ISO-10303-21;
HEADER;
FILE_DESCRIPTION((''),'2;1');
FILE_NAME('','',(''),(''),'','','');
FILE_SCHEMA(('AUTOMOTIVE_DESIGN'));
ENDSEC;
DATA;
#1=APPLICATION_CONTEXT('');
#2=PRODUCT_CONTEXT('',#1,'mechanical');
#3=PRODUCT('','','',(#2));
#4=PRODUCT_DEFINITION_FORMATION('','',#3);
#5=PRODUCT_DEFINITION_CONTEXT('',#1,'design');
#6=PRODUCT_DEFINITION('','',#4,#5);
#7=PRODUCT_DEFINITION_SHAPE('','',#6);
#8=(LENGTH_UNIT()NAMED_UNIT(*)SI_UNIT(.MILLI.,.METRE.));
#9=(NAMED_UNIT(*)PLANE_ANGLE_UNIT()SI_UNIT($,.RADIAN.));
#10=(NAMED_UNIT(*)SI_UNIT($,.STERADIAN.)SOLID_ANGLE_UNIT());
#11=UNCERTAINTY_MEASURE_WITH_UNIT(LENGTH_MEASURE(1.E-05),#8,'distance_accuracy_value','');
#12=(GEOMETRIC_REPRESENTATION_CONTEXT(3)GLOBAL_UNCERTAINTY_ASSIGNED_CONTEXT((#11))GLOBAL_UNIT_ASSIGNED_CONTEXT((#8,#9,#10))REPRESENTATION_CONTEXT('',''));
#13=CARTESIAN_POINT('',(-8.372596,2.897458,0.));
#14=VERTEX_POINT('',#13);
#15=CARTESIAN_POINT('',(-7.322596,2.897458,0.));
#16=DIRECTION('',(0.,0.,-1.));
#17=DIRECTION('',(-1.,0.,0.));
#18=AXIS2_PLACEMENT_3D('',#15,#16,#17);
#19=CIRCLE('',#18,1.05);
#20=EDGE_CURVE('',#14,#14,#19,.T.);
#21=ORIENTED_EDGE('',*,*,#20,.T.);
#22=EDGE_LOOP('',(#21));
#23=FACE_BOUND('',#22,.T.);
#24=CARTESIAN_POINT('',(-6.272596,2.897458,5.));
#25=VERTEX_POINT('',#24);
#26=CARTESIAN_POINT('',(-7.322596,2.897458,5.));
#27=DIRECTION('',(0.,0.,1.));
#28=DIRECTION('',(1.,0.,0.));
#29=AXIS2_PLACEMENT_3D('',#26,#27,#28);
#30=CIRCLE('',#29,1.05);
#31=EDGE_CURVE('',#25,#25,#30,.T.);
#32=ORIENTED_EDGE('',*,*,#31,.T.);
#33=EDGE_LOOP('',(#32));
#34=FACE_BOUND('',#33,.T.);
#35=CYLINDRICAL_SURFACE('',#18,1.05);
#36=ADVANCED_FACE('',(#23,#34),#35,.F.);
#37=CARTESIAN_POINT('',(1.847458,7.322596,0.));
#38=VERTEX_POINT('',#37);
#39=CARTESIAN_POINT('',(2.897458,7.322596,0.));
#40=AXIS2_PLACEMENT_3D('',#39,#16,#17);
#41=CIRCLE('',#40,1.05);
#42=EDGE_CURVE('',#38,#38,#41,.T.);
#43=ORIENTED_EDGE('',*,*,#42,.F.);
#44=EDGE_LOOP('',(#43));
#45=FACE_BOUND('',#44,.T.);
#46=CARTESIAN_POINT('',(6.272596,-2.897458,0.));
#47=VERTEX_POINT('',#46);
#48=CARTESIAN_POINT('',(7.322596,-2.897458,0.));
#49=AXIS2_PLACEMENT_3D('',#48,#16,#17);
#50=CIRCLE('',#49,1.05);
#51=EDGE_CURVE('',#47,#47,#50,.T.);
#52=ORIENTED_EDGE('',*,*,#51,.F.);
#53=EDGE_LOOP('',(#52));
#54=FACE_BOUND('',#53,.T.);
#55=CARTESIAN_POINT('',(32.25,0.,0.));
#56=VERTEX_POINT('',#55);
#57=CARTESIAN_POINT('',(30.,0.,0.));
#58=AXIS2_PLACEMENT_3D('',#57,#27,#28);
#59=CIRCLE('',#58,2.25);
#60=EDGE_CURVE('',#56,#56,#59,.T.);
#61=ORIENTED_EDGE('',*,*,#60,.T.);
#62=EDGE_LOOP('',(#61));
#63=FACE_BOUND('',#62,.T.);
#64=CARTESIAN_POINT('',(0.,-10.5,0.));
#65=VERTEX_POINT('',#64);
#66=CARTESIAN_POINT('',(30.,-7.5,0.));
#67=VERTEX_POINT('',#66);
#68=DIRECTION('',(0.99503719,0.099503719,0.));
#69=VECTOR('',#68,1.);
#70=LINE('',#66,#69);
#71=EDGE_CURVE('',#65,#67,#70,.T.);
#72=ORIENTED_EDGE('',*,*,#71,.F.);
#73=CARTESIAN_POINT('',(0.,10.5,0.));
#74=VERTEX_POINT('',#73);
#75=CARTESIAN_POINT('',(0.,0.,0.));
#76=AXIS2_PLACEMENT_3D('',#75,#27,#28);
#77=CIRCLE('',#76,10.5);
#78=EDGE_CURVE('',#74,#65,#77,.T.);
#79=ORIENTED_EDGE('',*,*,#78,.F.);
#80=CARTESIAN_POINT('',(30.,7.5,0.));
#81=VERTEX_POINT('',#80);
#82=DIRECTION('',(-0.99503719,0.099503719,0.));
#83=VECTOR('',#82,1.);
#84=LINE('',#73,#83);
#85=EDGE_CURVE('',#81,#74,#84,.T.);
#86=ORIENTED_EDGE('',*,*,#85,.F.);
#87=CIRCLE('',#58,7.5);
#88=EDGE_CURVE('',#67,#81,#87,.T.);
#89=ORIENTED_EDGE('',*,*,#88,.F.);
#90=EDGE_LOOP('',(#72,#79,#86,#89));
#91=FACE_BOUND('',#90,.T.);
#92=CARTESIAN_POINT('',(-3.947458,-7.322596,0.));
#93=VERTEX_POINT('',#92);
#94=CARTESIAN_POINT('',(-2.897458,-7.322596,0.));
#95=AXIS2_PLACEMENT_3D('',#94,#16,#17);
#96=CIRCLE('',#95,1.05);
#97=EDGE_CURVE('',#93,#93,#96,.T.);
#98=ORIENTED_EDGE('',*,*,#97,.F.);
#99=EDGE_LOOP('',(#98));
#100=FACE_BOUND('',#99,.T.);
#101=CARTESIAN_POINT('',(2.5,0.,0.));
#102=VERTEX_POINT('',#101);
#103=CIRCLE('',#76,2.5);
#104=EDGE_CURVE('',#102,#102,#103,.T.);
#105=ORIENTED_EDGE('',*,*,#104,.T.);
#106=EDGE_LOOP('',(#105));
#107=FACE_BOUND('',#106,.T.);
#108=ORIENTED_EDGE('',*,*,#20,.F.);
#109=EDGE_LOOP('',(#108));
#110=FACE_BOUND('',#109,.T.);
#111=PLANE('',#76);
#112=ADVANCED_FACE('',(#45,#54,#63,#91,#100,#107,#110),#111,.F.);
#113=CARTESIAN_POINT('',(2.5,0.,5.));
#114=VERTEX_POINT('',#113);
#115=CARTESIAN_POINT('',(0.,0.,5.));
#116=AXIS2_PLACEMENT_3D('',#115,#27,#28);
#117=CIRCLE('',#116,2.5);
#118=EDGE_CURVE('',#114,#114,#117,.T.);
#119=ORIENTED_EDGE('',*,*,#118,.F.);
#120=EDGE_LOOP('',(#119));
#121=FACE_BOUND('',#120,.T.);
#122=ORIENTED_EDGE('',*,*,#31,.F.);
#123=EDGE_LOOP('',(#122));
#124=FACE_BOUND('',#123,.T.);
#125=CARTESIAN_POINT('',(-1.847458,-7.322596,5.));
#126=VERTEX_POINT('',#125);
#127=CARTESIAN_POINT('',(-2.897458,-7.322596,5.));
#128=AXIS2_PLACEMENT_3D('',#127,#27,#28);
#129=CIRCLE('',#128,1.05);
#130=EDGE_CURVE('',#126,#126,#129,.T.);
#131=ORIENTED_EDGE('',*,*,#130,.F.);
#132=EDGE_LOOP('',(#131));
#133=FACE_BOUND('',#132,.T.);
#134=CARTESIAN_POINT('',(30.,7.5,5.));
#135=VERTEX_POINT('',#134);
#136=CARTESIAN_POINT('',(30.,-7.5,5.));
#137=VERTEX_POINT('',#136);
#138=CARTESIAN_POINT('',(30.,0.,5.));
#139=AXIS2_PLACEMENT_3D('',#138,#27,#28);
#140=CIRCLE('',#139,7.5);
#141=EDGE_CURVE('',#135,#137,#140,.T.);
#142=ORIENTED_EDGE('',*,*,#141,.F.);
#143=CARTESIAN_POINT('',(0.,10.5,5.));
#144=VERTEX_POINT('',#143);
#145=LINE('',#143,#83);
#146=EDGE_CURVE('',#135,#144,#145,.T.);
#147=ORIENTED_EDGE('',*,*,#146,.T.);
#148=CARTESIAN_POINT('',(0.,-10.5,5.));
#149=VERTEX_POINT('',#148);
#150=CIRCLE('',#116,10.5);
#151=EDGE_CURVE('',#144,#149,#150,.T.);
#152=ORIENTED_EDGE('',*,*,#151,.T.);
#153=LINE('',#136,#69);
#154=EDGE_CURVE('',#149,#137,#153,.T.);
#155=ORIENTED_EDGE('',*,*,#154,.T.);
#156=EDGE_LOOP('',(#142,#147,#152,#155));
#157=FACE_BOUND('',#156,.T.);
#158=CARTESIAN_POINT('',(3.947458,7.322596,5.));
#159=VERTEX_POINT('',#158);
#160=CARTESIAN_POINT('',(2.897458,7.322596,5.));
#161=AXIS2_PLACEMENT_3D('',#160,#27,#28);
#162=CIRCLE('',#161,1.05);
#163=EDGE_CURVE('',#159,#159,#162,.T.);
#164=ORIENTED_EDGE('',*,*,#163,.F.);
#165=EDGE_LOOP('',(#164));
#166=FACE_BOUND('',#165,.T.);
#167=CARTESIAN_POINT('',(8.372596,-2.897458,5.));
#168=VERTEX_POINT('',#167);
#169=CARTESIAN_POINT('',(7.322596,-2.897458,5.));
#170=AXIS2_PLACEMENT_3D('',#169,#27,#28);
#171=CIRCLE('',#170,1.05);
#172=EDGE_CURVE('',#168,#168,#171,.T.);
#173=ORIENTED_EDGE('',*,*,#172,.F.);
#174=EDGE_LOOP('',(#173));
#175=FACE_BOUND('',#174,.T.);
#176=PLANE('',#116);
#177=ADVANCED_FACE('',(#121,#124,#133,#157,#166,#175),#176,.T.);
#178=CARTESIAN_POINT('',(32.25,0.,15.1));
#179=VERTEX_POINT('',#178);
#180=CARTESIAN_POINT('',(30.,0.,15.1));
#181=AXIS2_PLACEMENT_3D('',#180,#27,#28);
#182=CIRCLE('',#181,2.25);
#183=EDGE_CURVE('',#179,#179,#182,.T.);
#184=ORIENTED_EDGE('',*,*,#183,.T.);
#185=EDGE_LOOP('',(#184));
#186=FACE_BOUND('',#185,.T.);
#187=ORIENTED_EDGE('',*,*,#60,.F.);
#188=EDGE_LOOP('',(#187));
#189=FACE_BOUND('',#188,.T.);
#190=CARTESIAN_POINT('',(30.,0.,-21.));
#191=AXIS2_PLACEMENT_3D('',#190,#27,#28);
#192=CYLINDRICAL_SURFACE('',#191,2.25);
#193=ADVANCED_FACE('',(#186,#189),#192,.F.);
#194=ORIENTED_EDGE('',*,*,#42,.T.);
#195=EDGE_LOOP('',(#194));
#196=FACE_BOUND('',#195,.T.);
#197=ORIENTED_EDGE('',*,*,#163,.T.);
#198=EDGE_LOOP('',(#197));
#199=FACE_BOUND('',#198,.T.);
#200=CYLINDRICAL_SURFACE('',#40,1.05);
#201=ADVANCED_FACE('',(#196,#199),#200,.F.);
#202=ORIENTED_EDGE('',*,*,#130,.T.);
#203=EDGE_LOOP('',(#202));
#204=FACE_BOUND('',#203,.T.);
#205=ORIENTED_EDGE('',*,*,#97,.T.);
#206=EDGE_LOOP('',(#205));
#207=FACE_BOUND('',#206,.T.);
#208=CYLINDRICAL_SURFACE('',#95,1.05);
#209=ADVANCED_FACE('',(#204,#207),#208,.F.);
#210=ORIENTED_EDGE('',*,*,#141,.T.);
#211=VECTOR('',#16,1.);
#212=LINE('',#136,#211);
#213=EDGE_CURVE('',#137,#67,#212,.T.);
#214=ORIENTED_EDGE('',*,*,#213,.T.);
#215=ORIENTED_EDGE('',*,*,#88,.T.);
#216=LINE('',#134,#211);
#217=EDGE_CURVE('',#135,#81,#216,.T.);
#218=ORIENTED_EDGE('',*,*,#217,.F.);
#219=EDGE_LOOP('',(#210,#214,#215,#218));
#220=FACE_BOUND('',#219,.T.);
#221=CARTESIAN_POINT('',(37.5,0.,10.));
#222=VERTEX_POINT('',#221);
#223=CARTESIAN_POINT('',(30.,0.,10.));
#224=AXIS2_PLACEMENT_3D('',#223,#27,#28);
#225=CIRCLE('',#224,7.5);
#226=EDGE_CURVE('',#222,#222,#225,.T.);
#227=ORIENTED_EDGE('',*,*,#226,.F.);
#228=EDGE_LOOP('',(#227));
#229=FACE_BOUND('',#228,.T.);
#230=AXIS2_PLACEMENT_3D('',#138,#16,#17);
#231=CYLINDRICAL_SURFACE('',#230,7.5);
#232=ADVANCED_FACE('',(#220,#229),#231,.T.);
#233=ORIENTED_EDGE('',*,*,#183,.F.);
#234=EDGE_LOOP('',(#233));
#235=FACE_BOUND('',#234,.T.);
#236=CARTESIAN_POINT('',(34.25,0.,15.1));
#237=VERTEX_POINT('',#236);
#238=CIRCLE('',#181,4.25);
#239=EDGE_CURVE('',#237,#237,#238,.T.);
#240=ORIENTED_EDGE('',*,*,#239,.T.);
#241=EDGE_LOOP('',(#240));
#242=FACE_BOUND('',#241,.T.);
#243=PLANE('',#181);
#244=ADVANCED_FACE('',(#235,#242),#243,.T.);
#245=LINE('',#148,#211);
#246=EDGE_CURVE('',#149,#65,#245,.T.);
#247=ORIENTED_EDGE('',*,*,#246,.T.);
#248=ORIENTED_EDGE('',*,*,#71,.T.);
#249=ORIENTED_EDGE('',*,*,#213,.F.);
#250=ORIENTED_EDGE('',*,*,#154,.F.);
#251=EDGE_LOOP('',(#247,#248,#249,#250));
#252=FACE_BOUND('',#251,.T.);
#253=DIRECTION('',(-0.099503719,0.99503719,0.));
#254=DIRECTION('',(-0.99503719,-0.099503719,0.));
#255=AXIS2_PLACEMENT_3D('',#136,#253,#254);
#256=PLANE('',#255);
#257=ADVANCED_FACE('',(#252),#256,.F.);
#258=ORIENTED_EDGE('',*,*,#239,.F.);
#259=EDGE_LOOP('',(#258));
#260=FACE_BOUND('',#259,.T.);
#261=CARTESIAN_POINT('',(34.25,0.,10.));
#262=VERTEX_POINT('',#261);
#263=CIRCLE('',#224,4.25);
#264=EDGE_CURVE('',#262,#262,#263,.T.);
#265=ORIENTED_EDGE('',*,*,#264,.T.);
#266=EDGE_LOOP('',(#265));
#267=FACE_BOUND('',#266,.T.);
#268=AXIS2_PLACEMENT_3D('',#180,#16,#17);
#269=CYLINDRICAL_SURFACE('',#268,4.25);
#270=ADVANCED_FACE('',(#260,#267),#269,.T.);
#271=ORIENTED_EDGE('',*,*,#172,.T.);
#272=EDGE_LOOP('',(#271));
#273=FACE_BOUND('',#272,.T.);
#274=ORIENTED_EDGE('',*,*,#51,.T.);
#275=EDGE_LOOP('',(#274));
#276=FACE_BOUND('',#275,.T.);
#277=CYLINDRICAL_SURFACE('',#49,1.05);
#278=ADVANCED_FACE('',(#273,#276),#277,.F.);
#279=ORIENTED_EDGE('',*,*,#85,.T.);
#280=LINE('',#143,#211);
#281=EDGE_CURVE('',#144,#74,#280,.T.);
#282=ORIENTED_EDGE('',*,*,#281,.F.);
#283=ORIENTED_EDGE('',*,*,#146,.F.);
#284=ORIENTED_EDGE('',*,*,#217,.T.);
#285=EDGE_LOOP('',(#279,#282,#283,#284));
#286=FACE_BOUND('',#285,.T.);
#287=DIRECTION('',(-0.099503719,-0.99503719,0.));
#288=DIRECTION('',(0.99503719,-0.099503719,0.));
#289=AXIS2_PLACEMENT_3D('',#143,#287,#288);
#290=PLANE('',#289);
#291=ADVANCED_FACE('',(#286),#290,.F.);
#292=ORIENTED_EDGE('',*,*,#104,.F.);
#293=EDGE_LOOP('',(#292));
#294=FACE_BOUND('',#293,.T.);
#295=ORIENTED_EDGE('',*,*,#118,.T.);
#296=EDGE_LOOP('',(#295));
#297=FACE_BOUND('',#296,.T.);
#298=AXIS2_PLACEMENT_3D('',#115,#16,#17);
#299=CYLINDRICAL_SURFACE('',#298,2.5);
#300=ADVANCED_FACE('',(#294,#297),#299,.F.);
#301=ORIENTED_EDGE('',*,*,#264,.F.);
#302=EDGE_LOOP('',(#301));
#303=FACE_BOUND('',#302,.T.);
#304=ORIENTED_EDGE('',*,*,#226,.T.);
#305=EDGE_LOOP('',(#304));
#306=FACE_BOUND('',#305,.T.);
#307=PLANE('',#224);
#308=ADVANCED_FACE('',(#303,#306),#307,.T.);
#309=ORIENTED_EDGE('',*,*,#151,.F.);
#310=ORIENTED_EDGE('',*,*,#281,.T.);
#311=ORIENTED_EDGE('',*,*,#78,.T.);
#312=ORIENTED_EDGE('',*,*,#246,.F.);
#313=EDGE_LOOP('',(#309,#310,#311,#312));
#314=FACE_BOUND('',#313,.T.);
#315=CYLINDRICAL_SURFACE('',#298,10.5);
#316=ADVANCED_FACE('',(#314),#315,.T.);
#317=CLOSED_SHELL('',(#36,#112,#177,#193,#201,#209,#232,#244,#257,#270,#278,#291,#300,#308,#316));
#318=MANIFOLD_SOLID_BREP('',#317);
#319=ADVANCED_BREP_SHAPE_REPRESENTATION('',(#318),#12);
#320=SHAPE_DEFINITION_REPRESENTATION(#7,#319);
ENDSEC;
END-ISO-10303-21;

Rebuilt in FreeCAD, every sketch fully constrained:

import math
import FreeCAD as App
import Part
import Sketcher
from FreeCAD import Vector

doc = App.newDocument("Part")
body = doc.addObject("PartDesign::Body", "Body")

sketch1 = body.newObject("Sketcher::SketchObject", "Sketch")
sketch1.AttachmentSupport = (doc.getObject("XY_Plane"), [""])
sketch1.MapMode = "FlatFace"
sketch1.addGeometry(Part.LineSegment(Vector(30, 7.5, 0), Vector(0, 10.5, 0)), False)
sketch1.addGeometry(Part.ArcOfCircle(Part.Circle(Vector(0, 0, 0), Vector(0, 0, 1), 10.5), math.radians(90), math.radians(270)), False)
sketch1.addGeometry(Part.LineSegment(Vector(0, -10.5, 0), Vector(30, -7.5, 0)), False)
sketch1.addGeometry(Part.ArcOfCircle(Part.Circle(Vector(30, 0, 0), Vector(0, 0, 1), 7.5), math.radians(-90), math.radians(90)), False)
sketch1.addGeometry(Part.Circle(Vector(0, 0, 0), Vector(0, 0, 1), 2.5), False)
sketch1.addConstraint(Sketcher.Constraint("Coincident", 0, 2, 1, 1))
sketch1.addConstraint(Sketcher.Constraint("Coincident", 1, 2, 2, 1))
sketch1.addConstraint(Sketcher.Constraint("Coincident", 2, 2, 3, 1))
sketch1.addConstraint(Sketcher.Constraint("Coincident", 3, 2, 0, 1))
sketch1.addConstraint(Sketcher.Constraint("Coincident", 1, 3, -1, 1))
sketch1.addConstraint(Sketcher.Constraint("Coincident", 4, 3, -1, 1))
sketch1.addConstraint(Sketcher.Constraint("Symmetric", 2, 2, 3, 2, -1))
sketch1.addConstraint(Sketcher.Constraint("PointOnObject", 0, 2, -2))
sketch1.addConstraint(Sketcher.Constraint("PointOnObject", 1, 2, -2))
sketch1.addConstraint(Sketcher.Constraint("Vertical", 3, 3, 2, 2))
sketch1.addConstraint(Sketcher.Constraint("Diameter", 4, 5.0))
sketch1.addConstraint(Sketcher.Constraint("Radius", 1, 10.5))
sketch1.addConstraint(Sketcher.Constraint("Radius", 3, 7.5))
sketch1.addConstraint(Sketcher.Constraint("DistanceX", -1, 1, 3, 3, 30.0))
pad1 = body.newObject("PartDesign::Pad", "Pad")
pad1.Profile = sketch1
pad1.Length = 5

sketch2 = body.newObject("Sketcher::SketchObject", "Sketch001")
sketch2.AttachmentSupport = (doc.getObject("XY_Plane"), [""])
sketch2.MapMode = "FlatFace"
sketch2.AttachmentOffset = App.Placement(Vector(0, 0, 5), App.Rotation())
sketch2.addGeometry(Part.Circle(Vector(30, 0, 0), Vector(0, 0, 1), 8), False)
sketch2.addConstraint(Sketcher.Constraint("PointOnObject", 0, 3, -1))
sketch2.addConstraint(Sketcher.Constraint("Diameter", 0, 15.0))
sketch2.addConstraint(Sketcher.Constraint("DistanceX", -1, 1, 0, 3, 30.0))
pad2 = body.newObject("PartDesign::Pad", "Pad001")
pad2.Profile = sketch2
pad2.Length = 5

sketch3 = body.newObject("Sketcher::SketchObject", "Sketch002")
sketch3.AttachmentSupport = (doc.getObject("XY_Plane"), [""])
sketch3.MapMode = "FlatFace"
sketch3.AttachmentOffset = App.Placement(Vector(0, 0, 10), App.Rotation())
sketch3.addGeometry(Part.Circle(Vector(30, 0, 0), Vector(0, 0, 1), 4.2), False)
sketch3.addConstraint(Sketcher.Constraint("PointOnObject", 0, 3, -1))
sketch3.addConstraint(Sketcher.Constraint("Diameter", 0, 8.5))
sketch3.addConstraint(Sketcher.Constraint("DistanceX", -1, 1, 0, 3, 30.0))
pad3 = body.newObject("PartDesign::Pad", "Pad002")
pad3.Profile = sketch3
pad3.Length = 5.1

sketch4 = body.newObject("Sketcher::SketchObject", "Sketch003")
sketch4.AttachmentSupport = (doc.getObject("XY_Plane"), [""])
sketch4.MapMode = "FlatFace"
sketch4.AttachmentOffset = App.Placement(Vector(0, 0, 15.1), App.Rotation())
sketch4.addGeometry(Part.Circle(Vector(30, 0, 0), Vector(0, 0, 1), 2.2), False)
sketch4.addConstraint(Sketcher.Constraint("PointOnObject", 0, 3, -1))
sketch4.addConstraint(Sketcher.Constraint("Diameter", 0, 4.5))
sketch4.addConstraint(Sketcher.Constraint("DistanceX", -1, 1, 0, 3, 30.0))
pocket1 = body.newObject("PartDesign::Pocket", "Pocket")
pocket1.Profile = sketch4
pocket1.Length = 36.1

sketch5 = body.newObject("Sketcher::SketchObject", "Sketch004")
sketch5.AttachmentSupport = (doc.getObject("XY_Plane"), [""])
sketch5.MapMode = "FlatFace"
sketch5.addGeometry(Part.Circle(Vector(-2.9, -7.3, 0), Vector(0, 0, 1), 1.1), False)
sketch5.addGeometry(Part.Circle(Vector(7.3, -2.9, 0), Vector(0, 0, 1), 1.1), False)
sketch5.addGeometry(Part.Circle(Vector(-7.3, 2.9, 0), Vector(0, 0, 1), 1.1), False)
sketch5.addGeometry(Part.Circle(Vector(2.9, 7.3, 0), Vector(0, 0, 1), 1.1), False)
sketch5.addConstraint(Sketcher.Constraint("Equal", 0, 1))
sketch5.addConstraint(Sketcher.Constraint("Equal", 1, 2))
sketch5.addConstraint(Sketcher.Constraint("Equal", 2, 3))
sketch5.addConstraint(Sketcher.Constraint("Symmetric", 1, 3, 2, 3, -1, 1))
sketch5.addConstraint(Sketcher.Constraint("Symmetric", 0, 3, 3, 3, -1, 1))
sketch5.addConstraint(Sketcher.Constraint("Diameter", 0, 2.1))
sketch5.addConstraint(Sketcher.Constraint("DistanceX", 0, 3, -1, 1, 2.897458))
sketch5.addConstraint(Sketcher.Constraint("DistanceY", 1, 3, -1, 1, 2.897458))
sketch5.addConstraint(Sketcher.Constraint("DistanceX", 2, 3, 1, 3, 14.645192))
sketch5.addConstraint(Sketcher.Constraint("DistanceY", 0, 3, 3, 3, 14.645192))
doc.recompute()
hole = body.newObject("PartDesign::Hole", "Hole")
hole.Profile = sketch5
hole.ThreadType = "None"
hole.Diameter = 2.1
hole.DepthType = "ThroughAll"
hole.Reversed = True

doc.recompute()
